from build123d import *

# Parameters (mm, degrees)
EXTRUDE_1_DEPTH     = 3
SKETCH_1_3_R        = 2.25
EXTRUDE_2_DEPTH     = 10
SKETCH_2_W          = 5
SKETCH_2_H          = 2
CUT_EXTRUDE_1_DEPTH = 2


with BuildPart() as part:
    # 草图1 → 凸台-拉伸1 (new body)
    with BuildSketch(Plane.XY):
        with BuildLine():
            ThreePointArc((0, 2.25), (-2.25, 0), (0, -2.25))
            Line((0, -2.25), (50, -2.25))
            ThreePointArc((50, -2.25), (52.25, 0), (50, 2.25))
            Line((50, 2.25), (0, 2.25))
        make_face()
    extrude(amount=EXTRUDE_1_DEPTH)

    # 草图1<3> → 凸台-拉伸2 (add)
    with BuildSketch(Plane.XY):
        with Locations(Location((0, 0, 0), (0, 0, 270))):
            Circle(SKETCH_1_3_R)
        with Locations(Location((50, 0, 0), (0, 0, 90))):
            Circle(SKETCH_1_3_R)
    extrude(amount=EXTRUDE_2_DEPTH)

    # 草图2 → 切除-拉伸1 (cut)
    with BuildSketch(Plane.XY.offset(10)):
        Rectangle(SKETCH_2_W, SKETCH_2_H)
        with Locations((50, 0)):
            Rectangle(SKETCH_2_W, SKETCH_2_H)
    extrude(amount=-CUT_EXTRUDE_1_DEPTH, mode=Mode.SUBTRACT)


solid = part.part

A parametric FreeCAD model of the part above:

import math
import FreeCAD as App
import Part
import Sketcher
from FreeCAD import Vector
Q = App.Units.Quantity


def add_polygon(sketch, points):
    """Adds a closed chain of lines whose ends are joined by coincident constraints."""
    first, n = sketch.GeometryCount, len(points)
    for a, b in zip(points, points[1:] + points[:1]):
        sketch.addGeometry(Part.LineSegment(App.Vector(*a, 0), App.Vector(*b, 0)), False)
    for i in range(n):
        sketch.addConstraint(Sketcher.Constraint("Coincident", first + i, 2, first + (i + 1) % n, 1))

doc = App.newDocument("Part")
body = doc.addObject("PartDesign::Body", "Body")

sketch1 = body.newObject("Sketcher::SketchObject", "Sketch")
sketch1.AttachmentSupport = (doc.getObject("XY_Plane"), [""])
sketch1.MapMode = "FlatFace"
sketch1.addGeometry(Part.ArcOfCircle(Part.Circle(Vector(0, 0, 0), Vector(0, 0, 1), 2.2), math.radians(90), math.radians(270)), False)
sketch1.addGeometry(Part.LineSegment(Vector(0, -2.2, 0), Vector(50, -2.2, 0)), False)
sketch1.addGeometry(Part.ArcOfCircle(Part.Circle(Vector(50, 0, 0), Vector(0, 0, 1), 2.2), math.radians(-90), math.radians(90)), False)
sketch1.addGeometry(Part.LineSegment(Vector(50, 2.2, 0), Vector(0, 2.2, 0)), False)
sketch1.addConstraint(Sketcher.Constraint("Tangent", 0, 2, 1, 1))
sketch1.addConstraint(Sketcher.Constraint("Tangent", 1, 2, 2, 1))
sketch1.addConstraint(Sketcher.Constraint("Tangent", 2, 2, 3, 1))
sketch1.addConstraint(Sketcher.Constraint("Tangent", 3, 2, 0, 1))
sketch1.addConstraint(Sketcher.Constraint("Horizontal", 1))
sketch1.addConstraint(Sketcher.Constraint("Horizontal", 3))
sketch1.addConstraint(Sketcher.Constraint("Coincident", 0, 3, -1, 1))
sketch1.addConstraint(Sketcher.Constraint("DistanceX", 1, 1, 1, 2, Q("50 mm")))
sketch1.addConstraint(Sketcher.Constraint("Radius", 0, Q("2.25 mm")))
pad1 = body.newObject("PartDesign::Pad", "Pad")
pad1.Profile = sketch1
pad1.Length = 3

sketch2 = body.newObject("Sketcher::SketchObject", "Sketch001")
sketch2.AttachmentSupport = (doc.getObject("XY_Plane"), [""])
sketch2.MapMode = "FlatFace"
sketch2.addGeometry(Part.Circle(Vector(0, 0, 0), Vector(0, 0, 1), 2.2), False)
sketch2.addGeometry(Part.Circle(Vector(50, 0, 0), Vector(0, 0, 1), 2.2), False)
sketch2.addConstraint(Sketcher.Constraint("Coincident", 0, 3, -1, 1))
sketch2.addConstraint(Sketcher.Constraint("Equal", 0, 1))
sketch2.addConstraint(Sketcher.Constraint("PointOnObject", 1, 3, -1))
sketch2.addConstraint(Sketcher.Constraint("Diameter", 0, Q("4.5 mm")))
sketch2.addConstraint(Sketcher.Constraint("DistanceX", -1, 1, 1, 3, Q("50 mm")))
pad2 = body.newObject("PartDesign::Pad", "Pad001")
pad2.Profile = sketch2
pad2.Length = 10

sketch3 = body.newObject("Sketcher::SketchObject", "Sketch002")
sketch3.AttachmentSupport = (doc.getObject("XY_Plane"), [""])
sketch3.MapMode = "FlatFace"
sketch3.AttachmentOffset = App.Placement(Vector(0, 0, 10), App.Rotation())
add_polygon(sketch3, [(-2.5, 1), (-2.5, -1), (2.5, -1), (2.5, 1)])
add_polygon(sketch3, [(47.5, 1), (47.5, -1), (52.5, -1), (52.5, 1)])
sketch3.addConstraint(Sketcher.Constraint("Vertical", 0))
sketch3.addConstraint(Sketcher.Constraint("Horizontal", 1))
sketch3.addConstraint(Sketcher.Constraint("Vertical", 2))
sketch3.addConstraint(Sketcher.Constraint("Horizontal", 3))
sketch3.addConstraint(Sketcher.Constraint("Vertical", 4))
sketch3.addConstraint(Sketcher.Constraint("Horizontal", 5))
sketch3.addConstraint(Sketcher.Constraint("Vertical", 6))
sketch3.addConstraint(Sketcher.Constraint("Horizontal", 7))
sketch3.addConstraint(Sketcher.Constraint("Symmetric", 0, 2, 2, 2, -1, 1))
sketch3.addConstraint(Sketcher.Constraint("Horizontal", 1, 2, 4, 2))
sketch3.addConstraint(Sketcher.Constraint("Horizontal", 3, 2, 6, 2))
sketch3.addConstraint(Sketcher.Constraint("Equal", 3, 5))
sketch3.addConstraint(Sketcher.Constraint("DistanceX", 1, 1, 1, 2, Q("5 mm")))
sketch3.addConstraint(Sketcher.Constraint("DistanceY", 0, 2, 0, 1, Q("2 mm")))
sketch3.addConstraint(Sketcher.Constraint("DistanceX", 1, 2, 4, 2, Q("45 mm")))
pocket1 = body.newObject("PartDesign::Pocket", "Pocket")
pocket1.Profile = sketch3
pocket1.Length = 2

doc.recompute()
